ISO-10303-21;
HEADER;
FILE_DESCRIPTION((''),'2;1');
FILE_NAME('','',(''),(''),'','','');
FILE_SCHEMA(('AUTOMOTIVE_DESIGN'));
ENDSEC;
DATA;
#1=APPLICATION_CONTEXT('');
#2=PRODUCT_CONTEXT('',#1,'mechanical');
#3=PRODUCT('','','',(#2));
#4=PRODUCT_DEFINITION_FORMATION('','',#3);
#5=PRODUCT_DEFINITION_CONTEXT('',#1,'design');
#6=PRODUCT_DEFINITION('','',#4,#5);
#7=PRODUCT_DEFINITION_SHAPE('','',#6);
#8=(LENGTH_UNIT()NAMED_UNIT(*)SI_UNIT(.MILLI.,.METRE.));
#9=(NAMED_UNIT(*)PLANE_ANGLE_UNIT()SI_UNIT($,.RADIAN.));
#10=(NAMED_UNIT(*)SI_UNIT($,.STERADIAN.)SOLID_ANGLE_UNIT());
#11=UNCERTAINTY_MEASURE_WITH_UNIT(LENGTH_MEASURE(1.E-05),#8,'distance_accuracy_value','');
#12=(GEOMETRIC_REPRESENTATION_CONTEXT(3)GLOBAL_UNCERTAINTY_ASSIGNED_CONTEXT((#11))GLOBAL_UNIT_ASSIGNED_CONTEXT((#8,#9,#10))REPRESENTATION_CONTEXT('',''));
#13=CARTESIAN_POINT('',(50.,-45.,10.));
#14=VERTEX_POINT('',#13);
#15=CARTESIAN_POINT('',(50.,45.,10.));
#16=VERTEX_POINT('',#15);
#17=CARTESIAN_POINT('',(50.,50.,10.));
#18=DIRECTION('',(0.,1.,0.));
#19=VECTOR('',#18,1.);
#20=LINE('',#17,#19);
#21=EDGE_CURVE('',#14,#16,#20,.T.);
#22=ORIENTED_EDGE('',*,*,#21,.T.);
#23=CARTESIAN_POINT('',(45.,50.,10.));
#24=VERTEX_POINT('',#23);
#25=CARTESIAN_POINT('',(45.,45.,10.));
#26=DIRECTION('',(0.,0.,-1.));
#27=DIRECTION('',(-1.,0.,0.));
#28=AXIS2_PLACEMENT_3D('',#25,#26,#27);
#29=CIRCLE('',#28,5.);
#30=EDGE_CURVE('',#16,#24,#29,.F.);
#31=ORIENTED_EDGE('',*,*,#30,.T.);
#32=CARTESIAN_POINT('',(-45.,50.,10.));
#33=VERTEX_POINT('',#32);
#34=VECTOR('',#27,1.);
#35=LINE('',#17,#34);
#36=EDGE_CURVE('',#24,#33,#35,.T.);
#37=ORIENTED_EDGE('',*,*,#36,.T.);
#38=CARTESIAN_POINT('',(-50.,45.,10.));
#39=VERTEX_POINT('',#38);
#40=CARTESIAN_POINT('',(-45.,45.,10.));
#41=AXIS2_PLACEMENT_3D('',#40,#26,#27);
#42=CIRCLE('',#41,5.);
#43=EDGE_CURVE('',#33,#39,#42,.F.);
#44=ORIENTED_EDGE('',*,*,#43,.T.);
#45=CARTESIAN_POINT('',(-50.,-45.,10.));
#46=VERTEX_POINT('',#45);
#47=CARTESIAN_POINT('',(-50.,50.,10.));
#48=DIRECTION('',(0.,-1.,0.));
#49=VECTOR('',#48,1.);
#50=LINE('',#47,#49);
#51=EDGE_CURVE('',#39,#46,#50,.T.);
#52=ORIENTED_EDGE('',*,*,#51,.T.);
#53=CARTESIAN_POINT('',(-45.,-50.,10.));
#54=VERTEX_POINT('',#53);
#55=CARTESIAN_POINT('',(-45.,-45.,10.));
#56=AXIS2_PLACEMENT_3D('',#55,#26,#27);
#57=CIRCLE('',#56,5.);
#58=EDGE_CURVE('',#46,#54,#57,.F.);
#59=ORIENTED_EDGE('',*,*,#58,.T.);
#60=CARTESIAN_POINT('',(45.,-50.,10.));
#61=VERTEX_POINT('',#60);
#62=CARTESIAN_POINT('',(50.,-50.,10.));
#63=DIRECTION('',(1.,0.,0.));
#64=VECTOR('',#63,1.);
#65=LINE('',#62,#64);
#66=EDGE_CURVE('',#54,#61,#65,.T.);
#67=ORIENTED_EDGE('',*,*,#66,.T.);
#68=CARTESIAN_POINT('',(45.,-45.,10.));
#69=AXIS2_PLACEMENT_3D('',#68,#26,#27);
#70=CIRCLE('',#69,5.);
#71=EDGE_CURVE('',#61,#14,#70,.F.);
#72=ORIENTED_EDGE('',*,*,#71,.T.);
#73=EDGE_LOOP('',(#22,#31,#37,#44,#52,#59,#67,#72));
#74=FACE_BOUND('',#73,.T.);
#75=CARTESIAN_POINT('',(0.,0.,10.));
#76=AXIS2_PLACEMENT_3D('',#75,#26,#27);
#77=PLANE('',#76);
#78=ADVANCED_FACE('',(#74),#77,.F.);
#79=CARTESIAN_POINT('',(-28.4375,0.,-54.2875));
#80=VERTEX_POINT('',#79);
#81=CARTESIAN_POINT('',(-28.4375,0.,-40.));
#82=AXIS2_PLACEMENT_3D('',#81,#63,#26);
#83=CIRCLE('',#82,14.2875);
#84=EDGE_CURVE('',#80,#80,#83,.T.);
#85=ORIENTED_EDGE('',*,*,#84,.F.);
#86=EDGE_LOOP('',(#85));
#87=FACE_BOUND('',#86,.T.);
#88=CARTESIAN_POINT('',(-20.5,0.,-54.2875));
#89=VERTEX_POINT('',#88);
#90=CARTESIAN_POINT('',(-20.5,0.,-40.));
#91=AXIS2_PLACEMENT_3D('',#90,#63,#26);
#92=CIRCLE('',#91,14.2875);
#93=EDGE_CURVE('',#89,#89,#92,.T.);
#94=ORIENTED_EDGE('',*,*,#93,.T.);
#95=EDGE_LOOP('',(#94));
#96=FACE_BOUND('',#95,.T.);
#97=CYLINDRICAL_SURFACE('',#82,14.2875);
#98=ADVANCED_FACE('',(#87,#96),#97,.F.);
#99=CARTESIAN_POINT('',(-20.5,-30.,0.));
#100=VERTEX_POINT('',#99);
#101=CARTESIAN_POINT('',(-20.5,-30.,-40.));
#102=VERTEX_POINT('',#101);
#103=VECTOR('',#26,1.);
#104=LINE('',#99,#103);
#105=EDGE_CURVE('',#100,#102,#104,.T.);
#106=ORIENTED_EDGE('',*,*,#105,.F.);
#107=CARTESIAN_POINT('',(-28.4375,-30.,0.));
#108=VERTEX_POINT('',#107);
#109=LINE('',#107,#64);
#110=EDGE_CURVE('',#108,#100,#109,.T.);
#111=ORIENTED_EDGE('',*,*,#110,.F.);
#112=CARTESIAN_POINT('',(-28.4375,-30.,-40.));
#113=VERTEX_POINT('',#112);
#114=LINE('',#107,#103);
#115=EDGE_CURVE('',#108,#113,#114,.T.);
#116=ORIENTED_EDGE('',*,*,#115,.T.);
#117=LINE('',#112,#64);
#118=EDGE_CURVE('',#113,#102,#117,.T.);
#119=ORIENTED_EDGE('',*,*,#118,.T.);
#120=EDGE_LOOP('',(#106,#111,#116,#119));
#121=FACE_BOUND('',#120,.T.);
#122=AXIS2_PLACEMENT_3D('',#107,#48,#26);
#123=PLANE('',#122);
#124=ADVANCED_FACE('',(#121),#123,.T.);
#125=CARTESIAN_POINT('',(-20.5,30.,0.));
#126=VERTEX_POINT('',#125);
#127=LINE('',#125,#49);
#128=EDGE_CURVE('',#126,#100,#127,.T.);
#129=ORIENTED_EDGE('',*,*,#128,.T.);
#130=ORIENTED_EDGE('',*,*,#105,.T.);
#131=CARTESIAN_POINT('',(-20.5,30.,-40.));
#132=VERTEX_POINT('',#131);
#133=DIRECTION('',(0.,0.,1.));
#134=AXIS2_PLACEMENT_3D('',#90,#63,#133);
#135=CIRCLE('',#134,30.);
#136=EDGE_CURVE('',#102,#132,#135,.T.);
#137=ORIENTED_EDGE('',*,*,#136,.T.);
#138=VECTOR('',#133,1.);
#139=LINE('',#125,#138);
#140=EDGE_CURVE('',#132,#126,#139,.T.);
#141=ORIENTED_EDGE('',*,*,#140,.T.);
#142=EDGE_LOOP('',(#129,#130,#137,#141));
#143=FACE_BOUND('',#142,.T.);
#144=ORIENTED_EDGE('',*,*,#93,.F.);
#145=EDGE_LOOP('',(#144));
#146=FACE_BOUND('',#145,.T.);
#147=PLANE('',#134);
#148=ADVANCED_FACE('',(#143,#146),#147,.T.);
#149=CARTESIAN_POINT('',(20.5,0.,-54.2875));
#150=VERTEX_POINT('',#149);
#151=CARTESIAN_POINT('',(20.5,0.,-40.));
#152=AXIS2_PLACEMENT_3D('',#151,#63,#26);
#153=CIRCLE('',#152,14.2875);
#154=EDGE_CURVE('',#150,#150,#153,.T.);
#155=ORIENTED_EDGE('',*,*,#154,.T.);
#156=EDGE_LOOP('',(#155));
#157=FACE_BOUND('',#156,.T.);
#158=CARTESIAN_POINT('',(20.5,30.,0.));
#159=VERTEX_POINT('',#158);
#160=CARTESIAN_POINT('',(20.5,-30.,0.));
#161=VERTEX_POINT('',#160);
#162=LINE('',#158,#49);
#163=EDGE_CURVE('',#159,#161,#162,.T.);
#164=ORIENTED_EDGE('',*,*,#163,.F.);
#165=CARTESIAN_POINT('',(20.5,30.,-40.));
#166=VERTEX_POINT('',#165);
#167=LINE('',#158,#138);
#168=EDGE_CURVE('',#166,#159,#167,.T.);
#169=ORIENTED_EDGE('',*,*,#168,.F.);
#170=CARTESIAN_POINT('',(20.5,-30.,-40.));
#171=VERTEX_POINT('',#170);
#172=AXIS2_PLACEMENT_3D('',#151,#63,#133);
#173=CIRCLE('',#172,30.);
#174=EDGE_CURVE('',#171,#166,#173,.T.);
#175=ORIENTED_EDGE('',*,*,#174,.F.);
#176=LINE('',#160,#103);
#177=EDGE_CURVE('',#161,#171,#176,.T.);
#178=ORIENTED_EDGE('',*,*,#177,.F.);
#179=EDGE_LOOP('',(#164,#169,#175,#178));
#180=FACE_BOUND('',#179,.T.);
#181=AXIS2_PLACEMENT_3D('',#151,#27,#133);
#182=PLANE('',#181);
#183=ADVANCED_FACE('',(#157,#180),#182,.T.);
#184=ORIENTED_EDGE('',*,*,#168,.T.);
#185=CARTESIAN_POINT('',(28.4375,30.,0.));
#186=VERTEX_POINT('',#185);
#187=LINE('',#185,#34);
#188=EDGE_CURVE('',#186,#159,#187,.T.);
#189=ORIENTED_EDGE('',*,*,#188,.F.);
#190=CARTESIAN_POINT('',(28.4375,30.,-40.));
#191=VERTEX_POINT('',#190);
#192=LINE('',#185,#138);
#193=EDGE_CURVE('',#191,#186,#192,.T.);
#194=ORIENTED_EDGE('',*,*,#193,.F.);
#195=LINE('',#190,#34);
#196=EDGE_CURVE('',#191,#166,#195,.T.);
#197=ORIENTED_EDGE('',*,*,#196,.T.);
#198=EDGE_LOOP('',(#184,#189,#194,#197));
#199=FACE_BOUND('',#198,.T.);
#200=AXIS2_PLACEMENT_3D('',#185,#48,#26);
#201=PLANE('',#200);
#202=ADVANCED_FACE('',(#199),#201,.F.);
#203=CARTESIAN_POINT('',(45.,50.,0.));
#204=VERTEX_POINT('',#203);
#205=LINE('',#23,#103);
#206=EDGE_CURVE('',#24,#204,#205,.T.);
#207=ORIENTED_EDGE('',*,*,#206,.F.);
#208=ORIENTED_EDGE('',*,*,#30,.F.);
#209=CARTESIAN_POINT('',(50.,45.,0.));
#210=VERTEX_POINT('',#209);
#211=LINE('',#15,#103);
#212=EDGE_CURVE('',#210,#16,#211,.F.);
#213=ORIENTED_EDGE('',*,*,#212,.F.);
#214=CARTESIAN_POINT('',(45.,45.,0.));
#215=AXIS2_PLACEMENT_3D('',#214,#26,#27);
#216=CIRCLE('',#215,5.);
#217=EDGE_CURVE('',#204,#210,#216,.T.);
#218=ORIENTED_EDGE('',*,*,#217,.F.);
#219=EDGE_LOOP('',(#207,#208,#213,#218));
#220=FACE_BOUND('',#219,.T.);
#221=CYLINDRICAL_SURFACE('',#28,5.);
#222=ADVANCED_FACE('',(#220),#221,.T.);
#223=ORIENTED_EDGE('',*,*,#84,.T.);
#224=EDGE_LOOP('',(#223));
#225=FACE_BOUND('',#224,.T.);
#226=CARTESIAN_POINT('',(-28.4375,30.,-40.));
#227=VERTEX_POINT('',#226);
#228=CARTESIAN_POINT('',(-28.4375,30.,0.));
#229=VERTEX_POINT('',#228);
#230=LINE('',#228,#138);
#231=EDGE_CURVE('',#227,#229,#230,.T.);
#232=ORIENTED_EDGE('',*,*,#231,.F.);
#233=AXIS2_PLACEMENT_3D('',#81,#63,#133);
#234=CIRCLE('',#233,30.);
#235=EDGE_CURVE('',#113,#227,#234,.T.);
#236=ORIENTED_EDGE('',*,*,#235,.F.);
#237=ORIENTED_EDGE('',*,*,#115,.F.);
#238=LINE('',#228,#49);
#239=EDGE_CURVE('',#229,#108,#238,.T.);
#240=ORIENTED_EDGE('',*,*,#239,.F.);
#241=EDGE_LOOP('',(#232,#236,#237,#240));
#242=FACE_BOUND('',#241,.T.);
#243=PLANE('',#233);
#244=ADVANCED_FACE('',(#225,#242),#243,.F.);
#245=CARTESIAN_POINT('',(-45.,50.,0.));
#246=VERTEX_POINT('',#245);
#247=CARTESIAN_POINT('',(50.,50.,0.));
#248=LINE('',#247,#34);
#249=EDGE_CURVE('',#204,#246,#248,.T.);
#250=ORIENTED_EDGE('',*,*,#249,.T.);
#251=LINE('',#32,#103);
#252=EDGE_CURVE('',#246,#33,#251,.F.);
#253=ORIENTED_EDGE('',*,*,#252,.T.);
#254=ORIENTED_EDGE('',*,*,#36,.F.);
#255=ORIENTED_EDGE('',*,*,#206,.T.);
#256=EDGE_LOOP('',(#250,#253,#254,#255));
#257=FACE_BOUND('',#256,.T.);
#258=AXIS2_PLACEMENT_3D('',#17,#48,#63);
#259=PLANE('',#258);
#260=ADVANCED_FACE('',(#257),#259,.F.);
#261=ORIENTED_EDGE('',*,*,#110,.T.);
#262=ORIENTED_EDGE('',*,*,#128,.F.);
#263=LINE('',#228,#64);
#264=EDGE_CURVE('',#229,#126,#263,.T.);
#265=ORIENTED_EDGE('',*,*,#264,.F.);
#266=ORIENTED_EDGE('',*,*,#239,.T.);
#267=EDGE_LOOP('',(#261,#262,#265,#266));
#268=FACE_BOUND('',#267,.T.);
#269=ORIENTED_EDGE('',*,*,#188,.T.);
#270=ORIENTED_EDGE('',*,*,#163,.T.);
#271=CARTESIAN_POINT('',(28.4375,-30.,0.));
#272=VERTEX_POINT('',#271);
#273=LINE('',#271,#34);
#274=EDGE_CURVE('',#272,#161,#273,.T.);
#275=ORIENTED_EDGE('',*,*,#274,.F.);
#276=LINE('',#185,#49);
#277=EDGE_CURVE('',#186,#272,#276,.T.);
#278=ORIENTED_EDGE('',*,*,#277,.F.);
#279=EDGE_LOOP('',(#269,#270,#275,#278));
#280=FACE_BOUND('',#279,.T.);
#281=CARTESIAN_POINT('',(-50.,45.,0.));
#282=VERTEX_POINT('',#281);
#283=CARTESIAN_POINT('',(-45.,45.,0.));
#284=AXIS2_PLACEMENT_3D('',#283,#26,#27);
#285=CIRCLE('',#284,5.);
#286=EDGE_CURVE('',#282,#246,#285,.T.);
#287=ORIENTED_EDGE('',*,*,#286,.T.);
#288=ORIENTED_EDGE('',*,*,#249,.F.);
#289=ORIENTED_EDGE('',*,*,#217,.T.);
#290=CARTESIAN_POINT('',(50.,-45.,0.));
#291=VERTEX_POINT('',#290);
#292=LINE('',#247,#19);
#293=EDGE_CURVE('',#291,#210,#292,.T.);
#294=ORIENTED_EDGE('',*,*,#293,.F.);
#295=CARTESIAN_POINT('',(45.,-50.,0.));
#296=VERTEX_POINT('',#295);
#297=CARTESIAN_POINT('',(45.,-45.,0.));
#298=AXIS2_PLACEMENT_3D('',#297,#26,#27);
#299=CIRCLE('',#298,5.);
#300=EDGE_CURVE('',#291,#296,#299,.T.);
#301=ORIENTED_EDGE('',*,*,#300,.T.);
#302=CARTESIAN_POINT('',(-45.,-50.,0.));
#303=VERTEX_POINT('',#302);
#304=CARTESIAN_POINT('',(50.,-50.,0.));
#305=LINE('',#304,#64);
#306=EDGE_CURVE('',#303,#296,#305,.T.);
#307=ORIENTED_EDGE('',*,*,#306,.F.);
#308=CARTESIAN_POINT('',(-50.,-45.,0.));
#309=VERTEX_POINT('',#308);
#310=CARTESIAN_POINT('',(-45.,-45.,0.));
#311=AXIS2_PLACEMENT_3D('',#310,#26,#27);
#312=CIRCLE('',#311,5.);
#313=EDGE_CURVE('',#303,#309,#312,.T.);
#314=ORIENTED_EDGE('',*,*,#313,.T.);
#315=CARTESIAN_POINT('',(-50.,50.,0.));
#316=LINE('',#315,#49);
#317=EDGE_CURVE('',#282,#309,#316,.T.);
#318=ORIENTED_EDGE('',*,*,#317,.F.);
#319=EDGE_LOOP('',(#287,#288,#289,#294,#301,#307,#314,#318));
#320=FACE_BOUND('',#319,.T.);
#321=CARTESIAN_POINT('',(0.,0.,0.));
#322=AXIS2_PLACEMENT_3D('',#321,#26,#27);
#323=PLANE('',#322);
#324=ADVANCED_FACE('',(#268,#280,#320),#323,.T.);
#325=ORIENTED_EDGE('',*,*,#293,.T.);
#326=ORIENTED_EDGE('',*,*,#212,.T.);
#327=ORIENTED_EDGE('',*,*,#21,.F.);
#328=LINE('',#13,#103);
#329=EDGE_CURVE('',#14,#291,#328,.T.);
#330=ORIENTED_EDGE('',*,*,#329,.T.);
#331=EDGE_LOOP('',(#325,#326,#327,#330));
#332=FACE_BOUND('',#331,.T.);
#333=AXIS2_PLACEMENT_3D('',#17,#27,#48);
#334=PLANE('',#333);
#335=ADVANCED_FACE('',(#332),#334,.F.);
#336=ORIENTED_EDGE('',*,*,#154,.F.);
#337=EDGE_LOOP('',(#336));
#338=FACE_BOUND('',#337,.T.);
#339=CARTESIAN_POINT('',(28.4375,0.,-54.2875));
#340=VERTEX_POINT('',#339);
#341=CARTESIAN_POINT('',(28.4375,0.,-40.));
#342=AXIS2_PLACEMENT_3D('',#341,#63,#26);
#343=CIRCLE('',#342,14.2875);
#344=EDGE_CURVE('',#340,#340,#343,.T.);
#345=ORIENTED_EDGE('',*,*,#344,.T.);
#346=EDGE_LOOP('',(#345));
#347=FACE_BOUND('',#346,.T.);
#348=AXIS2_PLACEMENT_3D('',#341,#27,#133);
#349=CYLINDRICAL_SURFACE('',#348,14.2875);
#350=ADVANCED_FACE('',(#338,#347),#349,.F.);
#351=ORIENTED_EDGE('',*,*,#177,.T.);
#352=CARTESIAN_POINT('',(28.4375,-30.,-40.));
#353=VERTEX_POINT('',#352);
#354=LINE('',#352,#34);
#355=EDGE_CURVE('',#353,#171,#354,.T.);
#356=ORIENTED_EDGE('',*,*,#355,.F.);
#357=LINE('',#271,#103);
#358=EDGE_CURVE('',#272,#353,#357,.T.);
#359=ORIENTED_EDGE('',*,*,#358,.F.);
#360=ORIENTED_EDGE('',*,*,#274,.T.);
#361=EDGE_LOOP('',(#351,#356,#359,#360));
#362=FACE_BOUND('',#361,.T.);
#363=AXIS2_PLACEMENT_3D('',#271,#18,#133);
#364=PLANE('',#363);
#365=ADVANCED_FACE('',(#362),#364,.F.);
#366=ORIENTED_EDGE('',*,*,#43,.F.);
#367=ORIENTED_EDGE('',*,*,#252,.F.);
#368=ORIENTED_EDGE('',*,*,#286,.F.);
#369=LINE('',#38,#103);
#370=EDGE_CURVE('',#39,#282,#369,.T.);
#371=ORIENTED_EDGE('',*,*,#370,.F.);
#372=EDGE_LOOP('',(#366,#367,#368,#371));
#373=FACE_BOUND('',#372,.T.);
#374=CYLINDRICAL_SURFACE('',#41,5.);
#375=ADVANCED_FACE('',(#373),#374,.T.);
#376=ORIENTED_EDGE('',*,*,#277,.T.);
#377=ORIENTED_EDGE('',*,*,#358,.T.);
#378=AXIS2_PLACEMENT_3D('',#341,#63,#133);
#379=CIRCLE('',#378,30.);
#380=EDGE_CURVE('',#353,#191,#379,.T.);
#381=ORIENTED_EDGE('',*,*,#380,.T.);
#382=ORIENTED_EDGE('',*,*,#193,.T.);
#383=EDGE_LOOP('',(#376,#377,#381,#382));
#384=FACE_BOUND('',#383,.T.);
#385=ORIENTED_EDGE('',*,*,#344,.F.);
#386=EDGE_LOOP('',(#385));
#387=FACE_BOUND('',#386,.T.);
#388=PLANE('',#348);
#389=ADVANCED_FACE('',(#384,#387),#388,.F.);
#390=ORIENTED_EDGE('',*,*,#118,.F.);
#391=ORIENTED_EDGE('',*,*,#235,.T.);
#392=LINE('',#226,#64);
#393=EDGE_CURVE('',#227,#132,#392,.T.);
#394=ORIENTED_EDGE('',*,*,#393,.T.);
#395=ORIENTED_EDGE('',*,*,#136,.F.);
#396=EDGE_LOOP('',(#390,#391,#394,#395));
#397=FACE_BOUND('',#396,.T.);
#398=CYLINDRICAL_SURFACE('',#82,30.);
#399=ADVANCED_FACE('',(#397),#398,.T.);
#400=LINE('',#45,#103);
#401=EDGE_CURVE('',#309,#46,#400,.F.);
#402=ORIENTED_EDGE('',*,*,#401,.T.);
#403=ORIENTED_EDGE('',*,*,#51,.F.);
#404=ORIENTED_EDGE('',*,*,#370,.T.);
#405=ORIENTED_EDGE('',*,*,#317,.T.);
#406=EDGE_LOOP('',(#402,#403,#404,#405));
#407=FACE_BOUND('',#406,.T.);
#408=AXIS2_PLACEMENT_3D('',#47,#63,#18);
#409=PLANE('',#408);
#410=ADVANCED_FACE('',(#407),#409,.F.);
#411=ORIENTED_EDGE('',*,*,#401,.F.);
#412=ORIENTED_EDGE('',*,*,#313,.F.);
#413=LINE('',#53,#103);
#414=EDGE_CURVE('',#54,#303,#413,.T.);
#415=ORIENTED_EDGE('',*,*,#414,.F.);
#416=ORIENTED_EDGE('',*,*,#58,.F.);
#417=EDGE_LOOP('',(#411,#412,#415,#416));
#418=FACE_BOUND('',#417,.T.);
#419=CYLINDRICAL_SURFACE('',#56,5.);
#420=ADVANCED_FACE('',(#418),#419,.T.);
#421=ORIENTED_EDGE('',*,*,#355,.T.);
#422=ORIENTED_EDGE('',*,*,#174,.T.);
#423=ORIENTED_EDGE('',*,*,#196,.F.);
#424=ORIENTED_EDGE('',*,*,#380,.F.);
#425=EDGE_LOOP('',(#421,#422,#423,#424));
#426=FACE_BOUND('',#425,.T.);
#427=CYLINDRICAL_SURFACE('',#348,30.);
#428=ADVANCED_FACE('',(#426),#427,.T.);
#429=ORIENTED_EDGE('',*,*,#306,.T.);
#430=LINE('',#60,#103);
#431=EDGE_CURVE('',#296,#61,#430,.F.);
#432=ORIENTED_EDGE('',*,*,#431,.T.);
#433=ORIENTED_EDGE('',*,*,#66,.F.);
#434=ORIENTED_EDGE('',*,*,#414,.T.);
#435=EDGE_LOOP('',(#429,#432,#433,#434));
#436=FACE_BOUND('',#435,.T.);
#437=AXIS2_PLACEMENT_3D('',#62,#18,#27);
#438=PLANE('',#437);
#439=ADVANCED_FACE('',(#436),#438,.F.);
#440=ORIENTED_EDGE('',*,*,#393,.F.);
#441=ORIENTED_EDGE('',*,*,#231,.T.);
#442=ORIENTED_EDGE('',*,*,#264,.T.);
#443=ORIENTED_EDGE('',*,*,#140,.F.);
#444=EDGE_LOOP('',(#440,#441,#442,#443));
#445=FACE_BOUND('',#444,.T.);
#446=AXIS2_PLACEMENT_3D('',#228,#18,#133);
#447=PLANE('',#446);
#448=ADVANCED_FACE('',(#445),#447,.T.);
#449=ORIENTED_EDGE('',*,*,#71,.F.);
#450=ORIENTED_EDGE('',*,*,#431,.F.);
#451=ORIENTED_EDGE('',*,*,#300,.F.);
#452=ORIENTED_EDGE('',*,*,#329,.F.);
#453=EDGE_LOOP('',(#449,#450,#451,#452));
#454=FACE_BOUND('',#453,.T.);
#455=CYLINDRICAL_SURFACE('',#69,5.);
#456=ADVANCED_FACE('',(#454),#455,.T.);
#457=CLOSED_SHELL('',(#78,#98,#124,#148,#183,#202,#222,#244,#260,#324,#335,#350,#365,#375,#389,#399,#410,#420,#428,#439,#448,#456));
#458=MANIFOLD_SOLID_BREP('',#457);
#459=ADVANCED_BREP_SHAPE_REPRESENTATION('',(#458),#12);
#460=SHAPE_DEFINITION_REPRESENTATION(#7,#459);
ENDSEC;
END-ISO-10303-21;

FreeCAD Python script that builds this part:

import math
import FreeCAD as App
import Part
import Sketcher
from FreeCAD import Vector


def edges_at(feature, points):
    """Names of the edges that pass closest to the given points."""
    edges = feature.Shape.Edges
    near = lambda p: min(range(len(edges)), key=lambda i: edges[i].distToShape(Part.Vertex(*p))[0])
    return sorted({f"Edge{near(p) + 1}" for p in points})


def add_polygon(sketch, points):
    """Adds a closed chain of lines whose ends are joined by coincident constraints."""
    first, n = sketch.GeometryCount, len(points)
    for a, b in zip(points, points[1:] + points[:1]):
        sketch.addGeometry(Part.LineSegment(App.Vector(*a, 0), App.Vector(*b, 0)), False)
    for i in range(n):
        sketch.addConstraint(Sketcher.Constraint("Coincident", first + i, 2, first + (i + 1) % n, 1))

doc = App.newDocument("Part")
body = doc.addObject("PartDesign::Body", "Body")

# Sketch on XY plane
sketch1 = body.newObject("Sketcher::SketchObject", "Sketch")
sketch1.AttachmentSupport = (doc.getObject("XY_Plane"), [""])
sketch1.MapMode = "FlatFace"
add_polygon(sketch1, [(-50, 50), (-50, -50), (50, -50), (50, 50)])  # lines 0-3
sketch1.addConstraint([
    Sketcher.Constraint("Vertical", 0),
    Sketcher.Constraint("Horizontal", 1),
    Sketcher.Constraint("Vertical", 2),
    Sketcher.Constraint("Horizontal", 3),
    Sketcher.Constraint("Symmetric", 0, 2, 2, 2, -1, 1),
    Sketcher.Constraint("Equal", 3, 0),
    Sketcher.Constraint("DistanceX", 1, 1, 1, 2, 100.0),
])
pad1 = body.newObject("PartDesign::Pad", "Pad")
pad1.Profile = sketch1
pad1.Length = 10

# Sketch on YZ plane
sketch2 = body.newObject("Sketcher::SketchObject", "Sketch001")
sketch2.AttachmentSupport = (doc.getObject("YZ_Plane"), [""])
sketch2.MapMode = "FlatFace"
sketch2.AttachmentOffset = App.Placement(Vector(0, 0, 20.5), App.Rotation())
sketch2.addGeometry([
    Part.LineSegment(Vector(30, -40, 0), Vector(30, 0, 0)),  # 0
    Part.LineSegment(Vector(30, 0, 0), Vector(-30, 0, 0)),  # 1
    Part.LineSegment(Vector(-30, 0, 0), Vector(-30, -40, 0)),  # 2
    Part.ArcOfCircle(Part.Circle(Vector(0, -40, 0), Vector(0, 0, 1), 30), math.radians(180), math.radians(360)),  # 3
    Part.Circle(Vector(0, -40, 0), Vector(0, 0, 1), 14),  # 4
], False)
sketch2.addConstraint([
    Sketcher.Constraint("Coincident", 0, 2, 1, 1),
    Sketcher.Constraint("Coincident", 1, 2, 2, 1),
    Sketcher.Constraint("Tangent", 2, 2, 3, 1),
    Sketcher.Constraint("Tangent", 3, 2, 0, 1),
    Sketcher.Constraint("Vertical", 0),
    Sketcher.Constraint("Horizontal", 1),
    Sketcher.Constraint("Vertical", 2),
    Sketcher.Constraint("Coincident", 4, 3, 3, 3),
    Sketcher.Constraint("Symmetric", 0, 2, 1, 2, -1, 1),
    Sketcher.Constraint("Radius", 3, 30.0),
    Sketcher.Constraint("DistanceY", 0, 1, 0, 2, 40.0),
    Sketcher.Constraint("Diameter", 4, 28.575),
])
pad2 = body.newObject("PartDesign::Pad", "Pad001")
pad2.Profile = sketch2
pad2.Length = 7.9375
doc.recompute()

mirrored = body.newObject("PartDesign::Mirrored", "Mirrored")
mirrored.Originals = [pad2]
mirrored.MirrorPlane = (doc.getObject("YZ_Plane"), [""])
body.Tip = mirrored
doc.recompute()

fillet = body.newObject("PartDesign::Fillet", "Fillet")
fillet.Base = (mirrored, edges_at(mirrored, [
    (-50, 50, 5),
    (50, 50, 5),
    (50, -50, 5),
    (-50, -50, 5),
]))
fillet.Radius = 5

doc.recompute()
